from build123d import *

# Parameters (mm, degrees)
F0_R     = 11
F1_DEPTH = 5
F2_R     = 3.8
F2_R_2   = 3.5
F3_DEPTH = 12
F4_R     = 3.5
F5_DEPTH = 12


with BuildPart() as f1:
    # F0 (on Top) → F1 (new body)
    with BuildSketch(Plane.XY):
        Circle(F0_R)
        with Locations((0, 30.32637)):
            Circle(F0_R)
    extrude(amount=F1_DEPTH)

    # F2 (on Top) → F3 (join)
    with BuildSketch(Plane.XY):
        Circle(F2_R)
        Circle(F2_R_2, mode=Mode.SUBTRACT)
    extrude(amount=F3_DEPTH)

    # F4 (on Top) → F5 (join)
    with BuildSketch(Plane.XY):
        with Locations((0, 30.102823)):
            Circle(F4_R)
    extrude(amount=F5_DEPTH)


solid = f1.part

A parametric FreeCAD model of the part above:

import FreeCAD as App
import Part
import Sketcher
from FreeCAD import Vector
Q = App.Units.Quantity

doc = App.newDocument("Part")
body = doc.addObject("PartDesign::Body", "Body")
body.AllowCompound = True

# Sketch on XY plane
sketch1 = doc.addObject("Sketcher::SketchObject", "Sketch")
body.addObject(sketch1)
sketch1.AttachmentSupport = (doc.XY_Plane, [""])
sketch1.MapMode = "FlatFace"
sketch1.addGeometry([
    Part.Circle(Vector(0, 0, 0), Vector(0, 0, 1), 11),
    Part.Circle(Vector(0, 30.32637, 0), Vector(0, 0, 1), 11),
], False)
sketch1.addConstraint([
    Sketcher.Constraint("Coincident", 0, 3, -1, 1),
    Sketcher.Constraint("Equal", 0, 1),
    Sketcher.Constraint("PointOnObject", 1, 3, -2),
    Sketcher.Constraint("Diameter", 0, Q("22 mm")),
    Sketcher.Constraint("DistanceY", -1, 1, 1, 3, Q("30.32637 mm")),
])
pad1 = doc.addObject("PartDesign::Pad", "Pad")
body.addObject(pad1)
pad1.Profile = sketch1
pad1.Length = 5

# Sketch on XY plane
sketch2 = doc.addObject("Sketcher::SketchObject", "Sketch001")
body.addObject(sketch2)
sketch2.AttachmentSupport = (doc.XY_Plane, [""])
sketch2.MapMode = "FlatFace"
sketch2.addGeometry([
    Part.Circle(Vector(0, 0, 0), Vector(0, 0, 1), 3.8),
    Part.Circle(Vector(0, 0, 0), Vector(0, 0, 1), 3.5),
], False)
sketch2.addConstraint([
    Sketcher.Constraint("Coincident", 0, 3, -1, 1),
    Sketcher.Constraint("Coincident", 1, 3, -1, 1),
    Sketcher.Constraint("Diameter", 1, Q("7 mm")),
    Sketcher.Constraint("Diameter", 0, Q("7.6 mm")),
])
pad2 = doc.addObject("PartDesign::Pad", "Pad001")
body.addObject(pad2)
pad2.Profile = sketch2
pad2.Length = 12

# Sketch on XY plane
sketch3 = doc.addObject("Sketcher::SketchObject", "Sketch002")
body.addObject(sketch3)
sketch3.AttachmentSupport = (doc.XY_Plane, [""])
sketch3.MapMode = "FlatFace"
sketch3.addGeometry(Part.Circle(Vector(0, 30.102823, 0), Vector(0, 0, 1), 3.5), False)
sketch3.addConstraint([
    Sketcher.Constraint("PointOnObject", 0, 3, -2),
    Sketcher.Constraint("Diameter", 0, Q("7 mm")),
    Sketcher.Constraint("DistanceY", -1, 1, 0, 3, Q("30.102823 mm")),
])
pad3 = doc.addObject("PartDesign::Pad", "Pad002")
body.addObject(pad3)
pad3.Profile = sketch3
pad3.Length = 12

doc.recompute()
